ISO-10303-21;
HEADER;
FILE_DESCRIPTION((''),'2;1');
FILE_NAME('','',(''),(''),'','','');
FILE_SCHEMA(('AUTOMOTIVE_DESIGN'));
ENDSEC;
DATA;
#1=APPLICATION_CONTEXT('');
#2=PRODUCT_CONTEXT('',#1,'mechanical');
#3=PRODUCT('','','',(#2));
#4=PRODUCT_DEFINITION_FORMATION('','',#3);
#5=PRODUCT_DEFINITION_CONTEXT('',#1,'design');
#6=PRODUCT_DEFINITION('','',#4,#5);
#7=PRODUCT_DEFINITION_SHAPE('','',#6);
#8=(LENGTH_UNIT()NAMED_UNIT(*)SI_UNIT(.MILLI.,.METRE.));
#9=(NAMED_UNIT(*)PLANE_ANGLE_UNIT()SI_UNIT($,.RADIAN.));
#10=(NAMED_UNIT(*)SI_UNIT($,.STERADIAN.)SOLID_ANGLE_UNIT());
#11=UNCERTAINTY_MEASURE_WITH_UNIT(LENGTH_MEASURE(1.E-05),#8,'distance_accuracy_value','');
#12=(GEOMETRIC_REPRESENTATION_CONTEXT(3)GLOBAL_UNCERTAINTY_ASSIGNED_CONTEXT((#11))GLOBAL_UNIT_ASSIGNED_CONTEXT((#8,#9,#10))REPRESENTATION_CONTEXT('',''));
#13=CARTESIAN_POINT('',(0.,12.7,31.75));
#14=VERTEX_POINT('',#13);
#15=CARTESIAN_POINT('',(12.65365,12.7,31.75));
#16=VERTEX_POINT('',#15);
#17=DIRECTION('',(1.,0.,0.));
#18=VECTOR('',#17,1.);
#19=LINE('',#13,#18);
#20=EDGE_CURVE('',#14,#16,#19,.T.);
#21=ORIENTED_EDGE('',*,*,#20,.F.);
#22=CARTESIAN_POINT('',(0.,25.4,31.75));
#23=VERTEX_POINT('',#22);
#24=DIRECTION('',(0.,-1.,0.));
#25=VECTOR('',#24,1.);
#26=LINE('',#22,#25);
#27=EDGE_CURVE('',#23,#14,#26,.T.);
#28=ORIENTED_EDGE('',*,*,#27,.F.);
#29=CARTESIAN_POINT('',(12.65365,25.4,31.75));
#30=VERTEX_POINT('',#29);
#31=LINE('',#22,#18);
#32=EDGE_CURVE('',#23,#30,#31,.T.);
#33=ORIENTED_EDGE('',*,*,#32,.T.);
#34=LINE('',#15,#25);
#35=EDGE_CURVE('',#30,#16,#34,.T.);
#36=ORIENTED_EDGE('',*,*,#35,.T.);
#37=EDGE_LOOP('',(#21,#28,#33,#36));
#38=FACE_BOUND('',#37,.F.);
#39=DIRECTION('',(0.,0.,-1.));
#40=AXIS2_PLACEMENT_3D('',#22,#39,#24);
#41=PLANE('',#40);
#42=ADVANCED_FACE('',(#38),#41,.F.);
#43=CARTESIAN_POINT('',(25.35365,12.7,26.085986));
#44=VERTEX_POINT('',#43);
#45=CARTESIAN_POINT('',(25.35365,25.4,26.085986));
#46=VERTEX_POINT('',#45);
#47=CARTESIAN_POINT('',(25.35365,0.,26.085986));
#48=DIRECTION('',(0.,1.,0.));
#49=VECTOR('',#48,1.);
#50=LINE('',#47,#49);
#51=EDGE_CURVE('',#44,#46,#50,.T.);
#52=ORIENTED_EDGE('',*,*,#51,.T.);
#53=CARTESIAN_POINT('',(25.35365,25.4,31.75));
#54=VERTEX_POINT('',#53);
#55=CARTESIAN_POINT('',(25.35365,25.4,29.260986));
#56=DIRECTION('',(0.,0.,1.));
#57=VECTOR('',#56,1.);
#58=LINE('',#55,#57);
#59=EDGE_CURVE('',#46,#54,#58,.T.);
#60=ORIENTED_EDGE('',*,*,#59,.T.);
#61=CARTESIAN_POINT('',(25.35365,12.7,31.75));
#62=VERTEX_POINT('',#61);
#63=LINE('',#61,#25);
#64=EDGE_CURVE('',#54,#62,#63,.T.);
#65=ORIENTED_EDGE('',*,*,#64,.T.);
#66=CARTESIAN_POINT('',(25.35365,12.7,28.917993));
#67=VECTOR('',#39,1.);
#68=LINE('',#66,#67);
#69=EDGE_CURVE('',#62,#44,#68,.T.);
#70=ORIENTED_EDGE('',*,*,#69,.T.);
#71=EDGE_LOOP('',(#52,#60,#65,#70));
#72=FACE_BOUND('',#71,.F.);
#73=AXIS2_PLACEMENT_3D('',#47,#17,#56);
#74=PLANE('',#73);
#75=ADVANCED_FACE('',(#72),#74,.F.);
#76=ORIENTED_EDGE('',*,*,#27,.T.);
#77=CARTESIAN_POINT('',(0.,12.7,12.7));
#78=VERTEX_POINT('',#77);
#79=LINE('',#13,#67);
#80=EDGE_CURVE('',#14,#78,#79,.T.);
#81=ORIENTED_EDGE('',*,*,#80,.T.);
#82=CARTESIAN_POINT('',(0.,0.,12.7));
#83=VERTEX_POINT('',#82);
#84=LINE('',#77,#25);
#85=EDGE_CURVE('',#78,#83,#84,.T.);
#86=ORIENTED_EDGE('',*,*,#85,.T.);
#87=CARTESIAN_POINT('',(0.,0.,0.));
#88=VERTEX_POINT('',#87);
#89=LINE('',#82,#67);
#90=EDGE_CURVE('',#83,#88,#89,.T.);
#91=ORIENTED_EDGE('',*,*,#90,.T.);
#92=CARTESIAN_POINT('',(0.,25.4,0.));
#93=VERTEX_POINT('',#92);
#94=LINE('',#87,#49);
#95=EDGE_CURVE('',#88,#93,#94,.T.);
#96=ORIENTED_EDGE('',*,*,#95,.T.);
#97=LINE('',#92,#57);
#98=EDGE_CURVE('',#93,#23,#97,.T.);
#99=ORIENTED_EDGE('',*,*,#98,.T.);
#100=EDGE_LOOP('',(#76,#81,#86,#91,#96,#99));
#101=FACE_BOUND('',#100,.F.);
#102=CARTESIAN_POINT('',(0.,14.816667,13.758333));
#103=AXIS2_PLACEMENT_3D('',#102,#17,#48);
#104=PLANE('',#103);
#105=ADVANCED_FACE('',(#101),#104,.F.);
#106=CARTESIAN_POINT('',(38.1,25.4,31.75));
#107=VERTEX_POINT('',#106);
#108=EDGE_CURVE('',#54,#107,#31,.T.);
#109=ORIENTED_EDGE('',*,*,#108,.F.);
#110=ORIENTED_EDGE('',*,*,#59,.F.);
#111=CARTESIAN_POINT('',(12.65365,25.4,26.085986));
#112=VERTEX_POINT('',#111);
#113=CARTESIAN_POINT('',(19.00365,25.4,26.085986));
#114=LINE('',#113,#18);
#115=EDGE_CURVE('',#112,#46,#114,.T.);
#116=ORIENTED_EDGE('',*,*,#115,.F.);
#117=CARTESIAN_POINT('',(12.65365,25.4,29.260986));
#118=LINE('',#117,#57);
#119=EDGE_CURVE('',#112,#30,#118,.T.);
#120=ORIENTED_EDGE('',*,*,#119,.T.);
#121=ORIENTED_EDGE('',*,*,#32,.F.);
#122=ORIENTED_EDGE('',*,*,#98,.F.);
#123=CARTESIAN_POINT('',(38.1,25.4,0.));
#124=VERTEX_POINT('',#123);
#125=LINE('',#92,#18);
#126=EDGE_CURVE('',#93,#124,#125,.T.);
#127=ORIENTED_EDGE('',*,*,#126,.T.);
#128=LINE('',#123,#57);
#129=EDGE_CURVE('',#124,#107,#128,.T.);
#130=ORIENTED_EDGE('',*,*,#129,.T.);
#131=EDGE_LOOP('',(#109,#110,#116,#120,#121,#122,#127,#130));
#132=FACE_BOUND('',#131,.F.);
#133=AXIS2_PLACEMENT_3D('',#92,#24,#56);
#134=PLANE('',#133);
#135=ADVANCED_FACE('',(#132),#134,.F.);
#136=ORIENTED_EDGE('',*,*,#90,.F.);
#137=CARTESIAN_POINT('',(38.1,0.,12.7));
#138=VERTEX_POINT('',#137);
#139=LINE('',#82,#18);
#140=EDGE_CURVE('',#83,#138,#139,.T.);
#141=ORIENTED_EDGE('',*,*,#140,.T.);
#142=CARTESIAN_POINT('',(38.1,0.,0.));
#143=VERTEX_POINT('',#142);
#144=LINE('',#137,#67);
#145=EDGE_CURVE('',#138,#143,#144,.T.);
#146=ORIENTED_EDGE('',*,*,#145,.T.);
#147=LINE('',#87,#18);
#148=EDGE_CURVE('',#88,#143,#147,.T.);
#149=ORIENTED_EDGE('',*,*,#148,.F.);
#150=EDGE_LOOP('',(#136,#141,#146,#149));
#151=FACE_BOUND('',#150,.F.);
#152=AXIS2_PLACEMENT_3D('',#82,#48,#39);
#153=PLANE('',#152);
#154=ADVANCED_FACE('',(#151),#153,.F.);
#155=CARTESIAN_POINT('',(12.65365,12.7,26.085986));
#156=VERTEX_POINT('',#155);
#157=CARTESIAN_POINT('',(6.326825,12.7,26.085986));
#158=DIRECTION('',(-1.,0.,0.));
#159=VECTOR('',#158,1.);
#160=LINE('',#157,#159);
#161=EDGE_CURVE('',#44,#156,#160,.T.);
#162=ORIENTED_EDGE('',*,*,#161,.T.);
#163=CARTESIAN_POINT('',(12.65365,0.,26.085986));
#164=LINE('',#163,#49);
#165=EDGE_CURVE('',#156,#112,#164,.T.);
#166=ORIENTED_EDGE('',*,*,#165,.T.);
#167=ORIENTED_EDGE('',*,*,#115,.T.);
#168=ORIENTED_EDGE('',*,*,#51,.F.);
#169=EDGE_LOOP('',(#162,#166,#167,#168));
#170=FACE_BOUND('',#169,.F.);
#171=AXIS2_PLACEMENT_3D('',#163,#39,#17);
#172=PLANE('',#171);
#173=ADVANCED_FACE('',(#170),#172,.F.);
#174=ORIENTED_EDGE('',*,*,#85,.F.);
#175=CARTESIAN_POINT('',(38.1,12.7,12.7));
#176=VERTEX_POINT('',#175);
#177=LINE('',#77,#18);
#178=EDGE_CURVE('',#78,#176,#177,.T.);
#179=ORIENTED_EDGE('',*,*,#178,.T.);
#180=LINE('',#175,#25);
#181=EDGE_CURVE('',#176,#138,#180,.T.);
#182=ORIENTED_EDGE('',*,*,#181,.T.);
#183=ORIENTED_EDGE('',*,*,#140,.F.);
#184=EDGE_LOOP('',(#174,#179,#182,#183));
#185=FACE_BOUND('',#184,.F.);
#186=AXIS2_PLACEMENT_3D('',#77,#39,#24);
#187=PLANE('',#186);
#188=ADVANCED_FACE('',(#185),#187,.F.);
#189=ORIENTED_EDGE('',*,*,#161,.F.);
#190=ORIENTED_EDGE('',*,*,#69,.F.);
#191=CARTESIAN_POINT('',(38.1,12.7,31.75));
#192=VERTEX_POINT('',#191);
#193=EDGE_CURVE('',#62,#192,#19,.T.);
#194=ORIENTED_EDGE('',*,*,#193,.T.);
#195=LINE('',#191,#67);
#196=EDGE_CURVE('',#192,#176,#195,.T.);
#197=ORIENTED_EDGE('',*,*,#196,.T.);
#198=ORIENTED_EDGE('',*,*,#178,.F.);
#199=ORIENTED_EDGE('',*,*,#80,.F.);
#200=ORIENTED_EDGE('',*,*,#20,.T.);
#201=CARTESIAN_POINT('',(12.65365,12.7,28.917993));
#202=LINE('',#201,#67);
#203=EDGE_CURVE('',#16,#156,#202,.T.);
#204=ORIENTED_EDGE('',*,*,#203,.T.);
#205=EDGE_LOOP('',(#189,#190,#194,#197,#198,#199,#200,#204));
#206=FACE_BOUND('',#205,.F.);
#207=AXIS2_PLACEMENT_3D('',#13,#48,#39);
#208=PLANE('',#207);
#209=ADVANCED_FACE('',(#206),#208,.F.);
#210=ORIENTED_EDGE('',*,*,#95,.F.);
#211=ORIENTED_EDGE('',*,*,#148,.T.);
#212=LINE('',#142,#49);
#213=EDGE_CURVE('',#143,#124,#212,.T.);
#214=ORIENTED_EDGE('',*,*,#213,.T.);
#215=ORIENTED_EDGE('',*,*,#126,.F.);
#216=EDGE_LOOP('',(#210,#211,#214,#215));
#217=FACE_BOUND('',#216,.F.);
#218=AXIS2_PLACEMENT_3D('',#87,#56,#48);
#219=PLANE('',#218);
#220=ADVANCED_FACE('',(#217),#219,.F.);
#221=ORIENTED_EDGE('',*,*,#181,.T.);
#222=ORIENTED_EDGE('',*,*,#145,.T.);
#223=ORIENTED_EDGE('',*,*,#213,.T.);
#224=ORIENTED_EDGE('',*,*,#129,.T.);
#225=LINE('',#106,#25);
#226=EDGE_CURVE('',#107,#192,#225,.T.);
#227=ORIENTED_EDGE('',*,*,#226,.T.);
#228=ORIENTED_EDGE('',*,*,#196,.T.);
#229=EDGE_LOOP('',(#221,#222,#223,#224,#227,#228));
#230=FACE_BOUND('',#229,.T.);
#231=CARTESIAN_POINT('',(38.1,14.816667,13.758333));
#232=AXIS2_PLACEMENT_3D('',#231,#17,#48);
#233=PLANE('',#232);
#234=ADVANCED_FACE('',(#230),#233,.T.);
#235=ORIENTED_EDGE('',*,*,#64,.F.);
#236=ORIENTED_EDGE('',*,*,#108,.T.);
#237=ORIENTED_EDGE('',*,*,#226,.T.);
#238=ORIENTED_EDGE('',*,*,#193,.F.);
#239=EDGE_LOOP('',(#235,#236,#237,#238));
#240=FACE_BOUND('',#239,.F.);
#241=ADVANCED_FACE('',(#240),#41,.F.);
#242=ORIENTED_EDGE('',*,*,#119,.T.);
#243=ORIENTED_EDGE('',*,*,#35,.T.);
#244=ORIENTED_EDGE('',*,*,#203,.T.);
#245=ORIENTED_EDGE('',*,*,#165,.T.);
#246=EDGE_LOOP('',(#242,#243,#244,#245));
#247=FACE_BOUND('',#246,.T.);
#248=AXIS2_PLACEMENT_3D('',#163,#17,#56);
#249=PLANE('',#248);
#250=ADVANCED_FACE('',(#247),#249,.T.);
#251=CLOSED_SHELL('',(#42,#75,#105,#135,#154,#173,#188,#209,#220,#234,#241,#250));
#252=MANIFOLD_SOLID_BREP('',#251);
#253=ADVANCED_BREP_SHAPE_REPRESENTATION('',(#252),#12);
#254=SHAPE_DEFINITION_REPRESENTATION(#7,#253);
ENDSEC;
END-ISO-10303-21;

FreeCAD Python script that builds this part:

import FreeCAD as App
import Part
import Sketcher

V = App.Vector
Q = App.Units.Quantity


def add_polygon(sketch, points):
    """Adds a closed chain of lines whose ends are joined by coincident constraints."""
    first, n = sketch.GeometryCount, len(points)
    for a, b in zip(points, points[1:] + points[:1]):
        sketch.addGeometry(Part.LineSegment(App.Vector(*a, 0), App.Vector(*b, 0)), False)
    for i in range(n):
        sketch.addConstraint(Sketcher.Constraint("Coincident", first + i, 2, first + (i + 1) % n, 1))

doc = App.newDocument("Part")
body = doc.addObject("PartDesign::Body", "Body")

sketch1 = body.newObject("Sketcher::SketchObject", "Sketch")
sketch1.AttachmentSupport = (doc.getObject("YZ_Plane"), [""])
sketch1.MapMode = "FlatFace"
add_polygon(sketch1, [(0, 13), (0, 0), (25, 0), (25, 32), (13, 32), (13, 13)])
sketch1.addConstraint(Sketcher.Constraint("Vertical", 0))
sketch1.addConstraint(Sketcher.Constraint("Horizontal", 1))
sketch1.addConstraint(Sketcher.Constraint("Vertical", 2))
sketch1.addConstraint(Sketcher.Constraint("Horizontal", 3))
sketch1.addConstraint(Sketcher.Constraint("Vertical", 4))
sketch1.addConstraint(Sketcher.Constraint("Horizontal", 5))
sketch1.addConstraint(Sketcher.Constraint("Coincident", 0, 2, -1, 1))
sketch1.addConstraint(Sketcher.Constraint("Equal", 3, 5))
sketch1.addConstraint(Sketcher.Constraint("Equal", 5, 0))
sketch1.addConstraint(Sketcher.Constraint("DistanceX", 1, 1, 1, 2, Q("1 in")))
sketch1.addConstraint(Sketcher.Constraint("DistanceY", 2, 1, 2, 2, Q("1.25 in")))
pad1 = body.newObject("PartDesign::Pad", "Pad")
pad1.Profile = sketch1
pad1.Length = Q("1.5 in")

sketch2 = body.newObject("Sketcher::SketchObject", "Sketch001")
sketch2.AttachmentSupport = (doc.getObject("XZ_Plane"), [""])
sketch2.MapMode = "FlatFace"
add_polygon(sketch2, [(13, 32), (13, 26), (25, 26), (25, 32)])
sketch2.addConstraint(Sketcher.Constraint("Vertical", 0))
sketch2.addConstraint(Sketcher.Constraint("Horizontal", 1))
sketch2.addConstraint(Sketcher.Constraint("Vertical", 2))
sketch2.addConstraint(Sketcher.Constraint("Horizontal", 3))
sketch2.addConstraint(Sketcher.Constraint("DistanceX", 1, 1, 1, 2, Q("0.5 in")))
sketch2.addConstraint(Sketcher.Constraint("DistanceY", 0, 2, 0, 1, Q("0.25 in")))
sketch2.addConstraint(Sketcher.Constraint("DistanceX", -1, 1, 0, 2, Q("12.65365 mm")))
sketch2.addConstraint(Sketcher.Constraint("DistanceY", -1, 1, 0, 2, Q("26.085986 mm")))
pocket1 = body.newObject("PartDesign::Pocket", "Pocket")
pocket1.Profile = sketch2
pocket1.Length = Q("1 in")

doc.recompute()
